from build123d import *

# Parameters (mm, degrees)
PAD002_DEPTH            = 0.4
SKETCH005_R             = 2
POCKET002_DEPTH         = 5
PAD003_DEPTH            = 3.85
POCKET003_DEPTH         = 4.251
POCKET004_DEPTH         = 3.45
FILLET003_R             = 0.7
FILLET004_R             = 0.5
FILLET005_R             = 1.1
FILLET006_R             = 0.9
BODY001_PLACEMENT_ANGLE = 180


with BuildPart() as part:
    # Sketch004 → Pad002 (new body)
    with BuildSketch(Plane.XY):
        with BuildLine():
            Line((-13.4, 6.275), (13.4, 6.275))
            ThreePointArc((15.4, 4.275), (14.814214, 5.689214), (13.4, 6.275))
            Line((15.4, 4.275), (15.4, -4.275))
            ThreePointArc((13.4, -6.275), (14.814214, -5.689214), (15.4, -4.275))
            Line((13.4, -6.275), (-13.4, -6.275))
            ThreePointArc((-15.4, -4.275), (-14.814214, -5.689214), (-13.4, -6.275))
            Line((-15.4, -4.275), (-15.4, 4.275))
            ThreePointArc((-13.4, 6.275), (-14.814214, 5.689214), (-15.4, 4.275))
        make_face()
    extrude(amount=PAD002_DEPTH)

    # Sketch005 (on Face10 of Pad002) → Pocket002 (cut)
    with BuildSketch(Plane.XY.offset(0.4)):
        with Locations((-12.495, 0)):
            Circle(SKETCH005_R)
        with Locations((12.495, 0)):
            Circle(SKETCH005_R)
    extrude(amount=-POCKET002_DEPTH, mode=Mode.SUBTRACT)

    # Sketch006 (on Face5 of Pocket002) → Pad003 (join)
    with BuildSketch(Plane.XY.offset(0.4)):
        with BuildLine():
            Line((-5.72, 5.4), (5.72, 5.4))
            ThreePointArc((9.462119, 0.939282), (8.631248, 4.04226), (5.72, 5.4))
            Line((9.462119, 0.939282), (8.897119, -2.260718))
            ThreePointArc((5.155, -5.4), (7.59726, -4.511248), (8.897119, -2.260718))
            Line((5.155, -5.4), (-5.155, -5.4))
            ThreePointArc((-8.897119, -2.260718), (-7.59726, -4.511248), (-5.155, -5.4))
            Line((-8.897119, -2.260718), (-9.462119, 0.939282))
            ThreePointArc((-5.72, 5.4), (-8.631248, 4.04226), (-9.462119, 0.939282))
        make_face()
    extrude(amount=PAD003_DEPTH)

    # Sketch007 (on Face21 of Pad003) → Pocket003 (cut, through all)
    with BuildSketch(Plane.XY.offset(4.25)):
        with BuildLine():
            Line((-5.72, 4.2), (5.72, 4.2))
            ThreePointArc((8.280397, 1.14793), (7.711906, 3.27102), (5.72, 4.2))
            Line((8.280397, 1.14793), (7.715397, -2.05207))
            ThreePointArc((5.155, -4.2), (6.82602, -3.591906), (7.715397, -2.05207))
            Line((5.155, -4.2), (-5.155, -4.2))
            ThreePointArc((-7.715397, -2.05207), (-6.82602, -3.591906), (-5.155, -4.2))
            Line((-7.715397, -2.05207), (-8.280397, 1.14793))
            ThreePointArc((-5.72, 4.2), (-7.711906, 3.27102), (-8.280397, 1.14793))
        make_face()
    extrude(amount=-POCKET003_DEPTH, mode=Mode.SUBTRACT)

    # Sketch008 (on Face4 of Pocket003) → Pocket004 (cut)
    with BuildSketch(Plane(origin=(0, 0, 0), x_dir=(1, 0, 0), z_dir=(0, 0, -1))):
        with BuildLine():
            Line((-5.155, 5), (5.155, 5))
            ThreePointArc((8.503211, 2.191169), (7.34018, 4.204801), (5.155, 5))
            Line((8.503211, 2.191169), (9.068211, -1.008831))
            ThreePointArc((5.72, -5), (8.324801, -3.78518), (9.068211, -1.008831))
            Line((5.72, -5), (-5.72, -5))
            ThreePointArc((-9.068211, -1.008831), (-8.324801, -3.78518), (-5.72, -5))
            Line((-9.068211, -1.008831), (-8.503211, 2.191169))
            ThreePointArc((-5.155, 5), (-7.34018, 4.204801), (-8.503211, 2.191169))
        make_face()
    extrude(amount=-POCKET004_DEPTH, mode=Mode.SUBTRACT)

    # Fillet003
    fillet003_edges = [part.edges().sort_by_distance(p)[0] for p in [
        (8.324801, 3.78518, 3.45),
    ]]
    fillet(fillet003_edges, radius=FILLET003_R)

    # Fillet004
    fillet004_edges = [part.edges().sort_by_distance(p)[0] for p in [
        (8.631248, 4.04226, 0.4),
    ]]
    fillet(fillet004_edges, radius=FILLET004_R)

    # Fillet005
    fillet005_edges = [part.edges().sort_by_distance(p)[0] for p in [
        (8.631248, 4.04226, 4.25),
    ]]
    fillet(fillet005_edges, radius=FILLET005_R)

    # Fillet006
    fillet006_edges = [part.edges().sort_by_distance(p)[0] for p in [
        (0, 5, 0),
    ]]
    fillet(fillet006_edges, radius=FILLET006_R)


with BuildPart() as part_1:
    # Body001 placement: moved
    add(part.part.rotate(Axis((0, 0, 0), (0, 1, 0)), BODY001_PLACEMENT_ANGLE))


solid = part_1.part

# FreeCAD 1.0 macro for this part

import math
import FreeCAD as App
import Part
import Sketcher

V = App.Vector
Q = App.Units.Quantity


def edges_at(feature, points):
    """Names of the edges that pass closest to the given points."""
    edges = feature.Shape.Edges
    near = lambda p: min(range(len(edges)), key=lambda i: edges[i].distToShape(Part.Vertex(*p))[0])
    return sorted({f"Edge{near(p) + 1}" for p in points})

doc = App.newDocument("Part")
body = doc.addObject("PartDesign::Body", "Body")

# Sketch on XY plane
sketch1 = body.newObject("Sketcher::SketchObject", "Sketch")
sketch1.AttachmentSupport = (doc.getObject("XY_Plane"), [""])
sketch1.MapMode = "FlatFace"
sketch1.addGeometry(Part.LineSegment(V(13.4, 6.275, 0), V(-13.4, 6.275, 0)), False)
sketch1.addGeometry(Part.ArcOfCircle(Part.Circle(V(-13.400001, 4.275001, 0), V(0, 0, 1), 1.999999), math.radians(89.999957), math.radians(180.000043)), False)
sketch1.addGeometry(Part.LineSegment(V(-15.4, 4.275, 0), V(-15.4, -4.275, 0)), False)
sketch1.addGeometry(Part.ArcOfCircle(Part.Circle(V(-13.400001, -4.275001, 0), V(0, 0, 1), 1.999999), math.radians(179.999957), math.radians(270.000043)), False)
sketch1.addGeometry(Part.LineSegment(V(-13.4, -6.275, 0), V(13.4, -6.275, 0)), False)
sketch1.addGeometry(Part.ArcOfCircle(Part.Circle(V(13.400001, -4.275001, 0), V(0, 0, 1), 1.999999), math.radians(-90.000043), math.radians(0.000043)), False)
sketch1.addGeometry(Part.LineSegment(V(15.4, -4.275, 0), V(15.4, 4.275, 0)), False)
sketch1.addGeometry(Part.ArcOfCircle(Part.Circle(V(13.400001, 4.275001, 0), V(0, 0, 1), 1.999999), math.radians(-0.000043), math.radians(90.000043)), False)
sketch1.addConstraint(Sketcher.Constraint("Tangent", 0, 2, 1, 1))
sketch1.addConstraint(Sketcher.Constraint("Tangent", 1, 2, 2, 1))
sketch1.addConstraint(Sketcher.Constraint("Tangent", 2, 2, 3, 1))
sketch1.addConstraint(Sketcher.Constraint("Tangent", 3, 2, 4, 1))
sketch1.addConstraint(Sketcher.Constraint("Tangent", 4, 2, 5, 1))
sketch1.addConstraint(Sketcher.Constraint("Tangent", 5, 2, 6, 1))
sketch1.addConstraint(Sketcher.Constraint("Tangent", 6, 2, 7, 1))
sketch1.addConstraint(Sketcher.Constraint("Tangent", 7, 2, 0, 1))
sketch1.addConstraint(Sketcher.Constraint("Horizontal", 0))
sketch1.addConstraint(Sketcher.Constraint("Vertical", 2))
sketch1.addConstraint(Sketcher.Constraint("Horizontal", 4))
sketch1.addConstraint(Sketcher.Constraint("Vertical", 6))
sketch1.addConstraint(Sketcher.Constraint("Equal", 1, 3))
sketch1.addConstraint(Sketcher.Constraint("Equal", 3, 5))
sketch1.addConstraint(Sketcher.Constraint("Equal", 5, 7))
sketch1.addConstraint(Sketcher.Constraint("Symmetric", 1, 3, 5, 3, -1, 1))
sketch1.addConstraint(Sketcher.Constraint("Radius", 1, Q("1.999999 mm")))
sketch1.addConstraint(Sketcher.Constraint("DistanceX", 0, 2, 0, 1, Q("26.8 mm")))
sketch1.addConstraint(Sketcher.Constraint("DistanceY", 2, 2, 2, 1, Q("8.55 mm")))
pad1 = body.newObject("PartDesign::Pad", "Pad")
pad1.Profile = sketch1
pad1.Length = 0.4

# Sketch on XY plane
sketch2 = body.newObject("Sketcher::SketchObject", "Sketch001")
sketch2.AttachmentSupport = (doc.getObject("XY_Plane"), [""])
sketch2.MapMode = "FlatFace"
sketch2.AttachmentOffset = App.Placement(V(0, 0, 0.4), App.Rotation())
sketch2.addGeometry(Part.Circle(V(-12.495, 0, 0), V(0, 0, 1), 2), False)
sketch2.addGeometry(Part.Circle(V(12.495, 0, 0), V(0, 0, 1), 2), False)
sketch2.addConstraint(Sketcher.Constraint("Equal", 0, 1))
sketch2.addConstraint(Sketcher.Constraint("Symmetric", 0, 3, 1, 3, -1, 1))
sketch2.addConstraint(Sketcher.Constraint("PointOnObject", 0, 3, -1))
sketch2.addConstraint(Sketcher.Constraint("Diameter", 0, Q("4 mm")))
sketch2.addConstraint(Sketcher.Constraint("DistanceX", 0, 3, 1, 3, Q("24.99 mm")))
pocket1 = body.newObject("PartDesign::Pocket", "Pocket")
pocket1.Profile = sketch2
pocket1.Length = 5

# Sketch on XY plane
sketch3 = body.newObject("Sketcher::SketchObject", "Sketch002")
sketch3.AttachmentSupport = (doc.getObject("XY_Plane"), [""])
sketch3.MapMode = "FlatFace"
sketch3.AttachmentOffset = App.Placement(V(0, 0, 0.4), App.Rotation())
sketch3.addGeometry(Part.LineSegment(V(5.72, 5.4, 0), V(-5.72, 5.4, 0)), False)
sketch3.addGeometry(Part.ArcOfCircle(Part.Circle(V(-5.719999, 1.599999, 0), V(0, 0, 1), 3.800001), math.radians(90.000009), math.radians(190.013075)), False)
sketch3.addGeometry(Part.LineSegment(V(-9.462119, 0.939282, 0), V(-8.897119, -2.260718, 0)), False)
sketch3.addGeometry(Part.ArcOfCircle(Part.Circle(V(-5.154999, -1.599999, 0), V(0, 0, 1), 3.800001), math.radians(-169.986894), math.radians(-90.000011)), False)
sketch3.addGeometry(Part.LineSegment(V(-5.155, -5.4, 0), V(5.155, -5.4, 0)), False)
sketch3.addGeometry(Part.ArcOfCircle(Part.Circle(V(5.154999, -1.599999, 0), V(0, 0, 1), 3.800001), math.radians(-89.999989), math.radians(-10.013106)), False)
sketch3.addGeometry(Part.LineSegment(V(8.897119, -2.260718, 0), V(9.462119, 0.939282, 0)), False)
sketch3.addGeometry(Part.ArcOfCircle(Part.Circle(V(5.719999, 1.599999, 0), V(0, 0, 1), 3.800001), math.radians(-10.013075), math.radians(89.999991)), False)
sketch3.addConstraint(Sketcher.Constraint("Tangent", 0, 2, 1, 1))
sketch3.addConstraint(Sketcher.Constraint("Tangent", 1, 2, 2, 1))
sketch3.addConstraint(Sketcher.Constraint("Tangent", 2, 2, 3, 1))
sketch3.addConstraint(Sketcher.Constraint("Tangent", 3, 2, 4, 1))
sketch3.addConstraint(Sketcher.Constraint("Tangent", 4, 2, 5, 1))
sketch3.addConstraint(Sketcher.Constraint("Tangent", 5, 2, 6, 1))
sketch3.addConstraint(Sketcher.Constraint("Tangent", 6, 2, 7, 1))
sketch3.addConstraint(Sketcher.Constraint("Tangent", 7, 2, 0, 1))
sketch3.addConstraint(Sketcher.Constraint("Horizontal", 0))
sketch3.addConstraint(Sketcher.Constraint("Horizontal", 4))
sketch3.addConstraint(Sketcher.Constraint("Equal", 1, 3))
sketch3.addConstraint(Sketcher.Constraint("Equal", 3, 5))
sketch3.addConstraint(Sketcher.Constraint("Equal", 5, 7))
sketch3.addConstraint(Sketcher.Constraint("Symmetric", 2, 2, 5, 2, -2))
sketch3.addConstraint(Sketcher.Constraint("Radius", 1, Q("3.800001 mm")))
sketch3.addConstraint(Sketcher.Constraint("DistanceY", 3, 3, 0, 2, Q("6.999999 mm")))
sketch3.addConstraint(Sketcher.Constraint("DistanceX", 0, 2, 0, 1, Q("11.44 mm")))
sketch3.addConstraint(Sketcher.Constraint("DistanceX", 4, 1, 4, 2, Q("10.31 mm")))
sketch3.addConstraint(Sketcher.Constraint("DistanceY", -1, 1, 1, 3, Q("1.599999 mm")))
pad2 = body.newObject("PartDesign::Pad", "Pad001")
pad2.Profile = sketch3
pad2.Length = 3.85

# Sketch on XY plane
sketch4 = body.newObject("Sketcher::SketchObject", "Sketch003")
sketch4.AttachmentSupport = (doc.getObject("XY_Plane"), [""])
sketch4.MapMode = "FlatFace"
sketch4.AttachmentOffset = App.Placement(V(0, 0, 4.25), App.Rotation())
sketch4.addGeometry(Part.LineSegment(V(5.72, 4.2, 0), V(-5.72, 4.2, 0)), False)
sketch4.addGeometry(Part.ArcOfCircle(Part.Circle(V(-5.719999, 1.599999, 0), V(0, 0, 1), 2.600001), math.radians(90.000024), math.radians(190.01306)), False)
sketch4.addGeometry(Part.LineSegment(V(-8.280397, 1.14793, 0), V(-7.715397, -2.05207, 0)), False)
sketch4.addGeometry(Part.ArcOfCircle(Part.Circle(V(-5.154999, -1.599998, 0), V(0, 0, 1), 2.600002), math.radians(-169.986884), math.radians(-90.000031)), False)
sketch4.addGeometry(Part.LineSegment(V(-5.155, -4.2, 0), V(5.155, -4.2, 0)), False)
sketch4.addGeometry(Part.ArcOfCircle(Part.Circle(V(5.154999, -1.599998, 0), V(0, 0, 1), 2.600002), math.radians(-89.999969), math.radians(-10.013116)), False)
sketch4.addGeometry(Part.LineSegment(V(7.715397, -2.05207, 0), V(8.280397, 1.14793, 0)), False)
sketch4.addGeometry(Part.ArcOfCircle(Part.Circle(V(5.719999, 1.599999, 0), V(0, 0, 1), 2.600001), math.radians(-10.01306), math.radians(89.999976)), False)
sketch4.addConstraint(Sketcher.Constraint("Tangent", 0, 2, 1, 1))
sketch4.addConstraint(Sketcher.Constraint("Tangent", 1, 2, 2, 1))
sketch4.addConstraint(Sketcher.Constraint("Tangent", 2, 2, 3, 1))
sketch4.addConstraint(Sketcher.Constraint("Tangent", 3, 2, 4, 1))
sketch4.addConstraint(Sketcher.Constraint("Tangent", 4, 2, 5, 1))
sketch4.addConstraint(Sketcher.Constraint("Tangent", 5, 2, 6, 1))
sketch4.addConstraint(Sketcher.Constraint("Tangent", 6, 2, 7, 1))
sketch4.addConstraint(Sketcher.Constraint("Tangent", 7, 2, 0, 1))
sketch4.addConstraint(Sketcher.Constraint("Horizontal", 0))
sketch4.addConstraint(Sketcher.Constraint("Horizontal", 4))
sketch4.addConstraint(Sketcher.Constraint("Equal", 1, 3))
sketch4.addConstraint(Sketcher.Constraint("Equal", 3, 5))
sketch4.addConstraint(Sketcher.Constraint("Equal", 5, 7))
sketch4.addConstraint(Sketcher.Constraint("Symmetric", 2, 2, 5, 2, -2))
sketch4.addConstraint(Sketcher.Constraint("Radius", 1, Q("2.600001 mm")))
sketch4.addConstraint(Sketcher.Constraint("DistanceX", 0, 2, 0, 1, Q("11.44 mm")))
sketch4.addConstraint(Sketcher.Constraint("DistanceX", 4, 1, 4, 2, Q("10.31 mm")))
sketch4.addConstraint(Sketcher.Constraint("DistanceY", -1, 1, 1, 3, Q("1.599999 mm")))
sketch4.addConstraint(Sketcher.Constraint("DistanceY", 3, 3, -1, 1, Q("1.599998 mm")))
pocket2 = body.newObject("PartDesign::Pocket", "Pocket001")
pocket2.Profile = sketch4
pocket2.Type = "ThroughAll"

# Sketch on XY plane
sketch5 = body.newObject("Sketcher::SketchObject", "Sketch004")
sketch5.AttachmentSupport = (doc.getObject("XY_Plane"), [""])
sketch5.MapMode = "FlatFace"
sketch5.addGeometry(Part.LineSegment(V(5.155, -5, 0), V(-5.155, -5, 0)), False)
sketch5.addGeometry(Part.ArcOfCircle(Part.Circle(V(-5.155, -1.600001, 0), V(0, 0, 1), 3.399999), math.radians(-169.986915), math.radians(-89.999996)), False)
sketch5.addGeometry(Part.LineSegment(V(-8.503211, -2.191169, 0), V(-9.068211, 1.008831, 0)), False)
sketch5.addGeometry(Part.ArcOfCircle(Part.Circle(V(-5.72, 1.6, 0), V(0, 0, 1), 3.4), math.radians(89.999997), math.radians(190.013103)), False)
sketch5.addGeometry(Part.LineSegment(V(-5.72, 5, 0), V(5.72, 5, 0)), False)
sketch5.addGeometry(Part.ArcOfCircle(Part.Circle(V(5.72, 1.6, 0), V(0, 0, 1), 3.4), math.radians(-10.013103), math.radians(90.000003)), False)
sketch5.addGeometry(Part.LineSegment(V(9.068211, 1.008831, 0), V(8.503211, -2.191169, 0)), False)
sketch5.addGeometry(Part.ArcOfCircle(Part.Circle(V(5.155, -1.600001, 0), V(0, 0, 1), 3.399999), math.radians(-90.000004), math.radians(-10.013085)), False)
sketch5.addConstraint(Sketcher.Constraint("Tangent", 0, 2, 1, 2))
sketch5.addConstraint(Sketcher.Constraint("Tangent", 1, 1, 2, 1))
sketch5.addConstraint(Sketcher.Constraint("Tangent", 2, 2, 3, 2))
sketch5.addConstraint(Sketcher.Constraint("Tangent", 3, 1, 4, 1))
sketch5.addConstraint(Sketcher.Constraint("Tangent", 4, 2, 5, 2))
sketch5.addConstraint(Sketcher.Constraint("Tangent", 5, 1, 6, 1))
sketch5.addConstraint(Sketcher.Constraint("Tangent", 6, 2, 7, 2))
sketch5.addConstraint(Sketcher.Constraint("Tangent", 7, 1, 0, 1))
sketch5.addConstraint(Sketcher.Constraint("Horizontal", 0))
sketch5.addConstraint(Sketcher.Constraint("Horizontal", 4))
sketch5.addConstraint(Sketcher.Constraint("Equal", 1, 3))
sketch5.addConstraint(Sketcher.Constraint("Equal", 3, 5))
sketch5.addConstraint(Sketcher.Constraint("Equal", 5, 7))
sketch5.addConstraint(Sketcher.Constraint("Symmetric", 2, 2, 5, 1, -2))
sketch5.addConstraint(Sketcher.Constraint("Radius", 1, Q("3.399999 mm")))
sketch5.addConstraint(Sketcher.Constraint("DistanceY", 0, 2, -1, 1, Q("5 mm")))
sketch5.addConstraint(Sketcher.Constraint("DistanceY", -1, 1, 3, 1, Q("5 mm")))
sketch5.addConstraint(Sketcher.Constraint("DistanceX", 0, 2, 0, 1, Q("10.31 mm")))
sketch5.addConstraint(Sketcher.Constraint("DistanceX", 4, 1, 4, 2, Q("11.44 mm")))
pocket3 = body.newObject("PartDesign::Pocket", "Pocket002")
pocket3.Profile = sketch5
pocket3.Length = 3.45
pocket3.Reversed = True
doc.recompute()

fillet = body.newObject("PartDesign::Fillet", "Fillet")
fillet.Base = (pocket3, edges_at(pocket3, [(8.325, 3.785, 3.45)]))
fillet.Radius = 0.7
doc.recompute()

fillet2 = body.newObject("PartDesign::Fillet", "Fillet001")
fillet2.Base = (fillet, edges_at(fillet, [(8.631, 4.042, 0.4)]))
fillet2.Radius = 0.5
doc.recompute()

fillet3 = body.newObject("PartDesign::Fillet", "Fillet002")
fillet3.Base = (fillet2, edges_at(fillet2, [(8.631, 4.042, 4.25)]))
fillet3.Radius = 1.1
doc.recompute()

fillet4 = body.newObject("PartDesign::Fillet", "Fillet003")
fillet4.Base = (fillet3, edges_at(fillet3, [(0, 5, 0)]))
fillet4.Radius = 0.9
body2 = doc.addObject("PartDesign::Body", "Body001")
doc.recompute()

body.Placement = App.Placement(V(0, 0, 0), App.Rotation(V(0, 1, 0), 180))
boolean = body2.newObject("PartDesign::Boolean", "Boolean")
boolean.Type = "Fuse"
boolean.addObjects([body])

doc.recompute()
